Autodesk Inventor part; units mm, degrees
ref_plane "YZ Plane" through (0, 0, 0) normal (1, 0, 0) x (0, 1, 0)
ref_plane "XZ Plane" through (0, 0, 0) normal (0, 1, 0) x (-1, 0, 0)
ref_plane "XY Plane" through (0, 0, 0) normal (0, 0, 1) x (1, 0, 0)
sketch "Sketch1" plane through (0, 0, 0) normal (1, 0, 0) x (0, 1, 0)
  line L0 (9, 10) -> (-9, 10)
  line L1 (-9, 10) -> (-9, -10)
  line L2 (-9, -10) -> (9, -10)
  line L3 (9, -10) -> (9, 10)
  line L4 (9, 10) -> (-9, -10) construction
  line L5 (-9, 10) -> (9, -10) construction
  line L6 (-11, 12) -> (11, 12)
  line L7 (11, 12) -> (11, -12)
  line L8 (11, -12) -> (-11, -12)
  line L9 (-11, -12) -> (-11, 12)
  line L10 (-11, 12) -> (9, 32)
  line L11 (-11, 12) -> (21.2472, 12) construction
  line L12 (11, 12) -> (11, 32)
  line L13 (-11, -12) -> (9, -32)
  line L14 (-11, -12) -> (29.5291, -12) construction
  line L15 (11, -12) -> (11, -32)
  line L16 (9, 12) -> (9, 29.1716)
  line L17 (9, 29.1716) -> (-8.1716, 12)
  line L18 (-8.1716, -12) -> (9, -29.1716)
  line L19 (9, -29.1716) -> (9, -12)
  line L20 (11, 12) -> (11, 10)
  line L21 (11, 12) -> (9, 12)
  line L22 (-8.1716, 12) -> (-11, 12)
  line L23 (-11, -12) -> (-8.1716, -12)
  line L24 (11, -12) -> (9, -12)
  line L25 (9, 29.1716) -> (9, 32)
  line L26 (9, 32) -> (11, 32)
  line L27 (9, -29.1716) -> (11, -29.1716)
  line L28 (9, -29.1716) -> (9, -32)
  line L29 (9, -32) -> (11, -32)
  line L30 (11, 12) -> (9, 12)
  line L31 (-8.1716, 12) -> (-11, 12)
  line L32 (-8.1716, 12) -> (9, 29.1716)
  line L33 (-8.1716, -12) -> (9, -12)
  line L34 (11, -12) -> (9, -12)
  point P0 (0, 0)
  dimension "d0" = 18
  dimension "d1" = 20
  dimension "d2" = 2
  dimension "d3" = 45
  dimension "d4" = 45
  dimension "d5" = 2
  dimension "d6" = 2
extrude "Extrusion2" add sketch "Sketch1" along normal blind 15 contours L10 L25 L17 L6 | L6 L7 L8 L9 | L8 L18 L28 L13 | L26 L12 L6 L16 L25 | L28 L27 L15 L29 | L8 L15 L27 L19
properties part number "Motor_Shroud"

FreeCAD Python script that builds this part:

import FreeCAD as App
import Part
import Sketcher
from FreeCAD import Vector


def add_polygon(sketch, points):
    """Adds a closed chain of lines whose ends are joined by coincident constraints."""
    first, n = sketch.GeometryCount, len(points)
    for a, b in zip(points, points[1:] + points[:1]):
        sketch.addGeometry(Part.LineSegment(App.Vector(*a, 0), App.Vector(*b, 0)), False)
    for i in range(n):
        sketch.addConstraint(Sketcher.Constraint("Coincident", first + i, 2, first + (i + 1) % n, 1))

doc = App.newDocument("Part")
body = doc.addObject("PartDesign::Body", "Body")

sketch1 = body.newObject("Sketcher::SketchObject", "Sketch")
sketch1.AttachmentSupport = (doc.getObject("YZ_Plane"), [""])
sketch1.MapMode = "FlatFace"
add_polygon(sketch1, [(9, 32), (-11, 12), (-11, -12), (9, -32), (11, -32), (11, 32)])
add_polygon(sketch1, [(-8.1716, 12), (9, 29.1716), (9, 12)])
add_polygon(sketch1, [(9, 10), (9, -10), (-9, -10), (-9, 10)])
add_polygon(sketch1, [(-8.1716, -12), (9, -12), (9, -29.1716)])
sketch1.addConstraint(Sketcher.Constraint("Vertical", 1))
sketch1.addConstraint(Sketcher.Constraint("Horizontal", 3))
sketch1.addConstraint(Sketcher.Constraint("Vertical", 4))
sketch1.addConstraint(Sketcher.Constraint("Horizontal", 5))
sketch1.addConstraint(Sketcher.Constraint("Vertical", 7))
sketch1.addConstraint(Sketcher.Constraint("Horizontal", 8))
sketch1.addConstraint(Sketcher.Constraint("Vertical", 9))
sketch1.addConstraint(Sketcher.Constraint("Horizontal", 10))
sketch1.addConstraint(Sketcher.Constraint("Vertical", 11))
sketch1.addConstraint(Sketcher.Constraint("Horizontal", 12))
sketch1.addConstraint(Sketcher.Constraint("Horizontal", 13))
sketch1.addConstraint(Sketcher.Constraint("Vertical", 14))
sketch1.addConstraint(Sketcher.Constraint("Symmetric", 9, 2, 11, 2, -1, 1))
sketch1.addConstraint(Sketcher.Constraint("Symmetric", 2, 2, 5, 2, -1))
sketch1.addConstraint(Sketcher.Constraint("Symmetric", 7, 2, 13, 2, -1))
sketch1.addConstraint(Sketcher.Constraint("Perpendicular", 0, 2))
sketch1.addConstraint(Sketcher.Constraint("Perpendicular", 2, 6))
sketch1.addConstraint(Sketcher.Constraint("Perpendicular", 6, 15))
sketch1.addConstraint(Sketcher.Constraint("Horizontal", 0, 2, 7, 2))
sketch1.addConstraint(Sketcher.Constraint("Horizontal", 1, 2, 13, 2))
sketch1.addConstraint(Sketcher.Constraint("Vertical", 5, 2, 6, 2))
sketch1.addConstraint(Sketcher.Constraint("Vertical", 7, 2, 9, 2))
sketch1.addConstraint(Sketcher.Constraint("Vertical", 8, 2, 15, 2))
sketch1.addConstraint(Sketcher.Constraint("DistanceX", 3, 1, 3, 2, 2.0))
sketch1.addConstraint(Sketcher.Constraint("DistanceX", 10, 2, 10, 1, 18.0))
sketch1.addConstraint(Sketcher.Constraint("DistanceY", 9, 2, 9, 1, 20.0))
sketch1.addConstraint(Sketcher.Constraint("DistanceX", 1, 2, 2, 2, 20.0))
sketch1.addConstraint(Sketcher.Constraint("DistanceY", 1, 2, 9, 2, 2.0))
sketch1.addConstraint(Sketcher.Constraint("DistanceX", 8, 2, 8, 1, 17.1716))
pad1 = body.newObject("PartDesign::Pad", "Pad")
pad1.Profile = sketch1
pad1.Length = 15

doc.recompute()
